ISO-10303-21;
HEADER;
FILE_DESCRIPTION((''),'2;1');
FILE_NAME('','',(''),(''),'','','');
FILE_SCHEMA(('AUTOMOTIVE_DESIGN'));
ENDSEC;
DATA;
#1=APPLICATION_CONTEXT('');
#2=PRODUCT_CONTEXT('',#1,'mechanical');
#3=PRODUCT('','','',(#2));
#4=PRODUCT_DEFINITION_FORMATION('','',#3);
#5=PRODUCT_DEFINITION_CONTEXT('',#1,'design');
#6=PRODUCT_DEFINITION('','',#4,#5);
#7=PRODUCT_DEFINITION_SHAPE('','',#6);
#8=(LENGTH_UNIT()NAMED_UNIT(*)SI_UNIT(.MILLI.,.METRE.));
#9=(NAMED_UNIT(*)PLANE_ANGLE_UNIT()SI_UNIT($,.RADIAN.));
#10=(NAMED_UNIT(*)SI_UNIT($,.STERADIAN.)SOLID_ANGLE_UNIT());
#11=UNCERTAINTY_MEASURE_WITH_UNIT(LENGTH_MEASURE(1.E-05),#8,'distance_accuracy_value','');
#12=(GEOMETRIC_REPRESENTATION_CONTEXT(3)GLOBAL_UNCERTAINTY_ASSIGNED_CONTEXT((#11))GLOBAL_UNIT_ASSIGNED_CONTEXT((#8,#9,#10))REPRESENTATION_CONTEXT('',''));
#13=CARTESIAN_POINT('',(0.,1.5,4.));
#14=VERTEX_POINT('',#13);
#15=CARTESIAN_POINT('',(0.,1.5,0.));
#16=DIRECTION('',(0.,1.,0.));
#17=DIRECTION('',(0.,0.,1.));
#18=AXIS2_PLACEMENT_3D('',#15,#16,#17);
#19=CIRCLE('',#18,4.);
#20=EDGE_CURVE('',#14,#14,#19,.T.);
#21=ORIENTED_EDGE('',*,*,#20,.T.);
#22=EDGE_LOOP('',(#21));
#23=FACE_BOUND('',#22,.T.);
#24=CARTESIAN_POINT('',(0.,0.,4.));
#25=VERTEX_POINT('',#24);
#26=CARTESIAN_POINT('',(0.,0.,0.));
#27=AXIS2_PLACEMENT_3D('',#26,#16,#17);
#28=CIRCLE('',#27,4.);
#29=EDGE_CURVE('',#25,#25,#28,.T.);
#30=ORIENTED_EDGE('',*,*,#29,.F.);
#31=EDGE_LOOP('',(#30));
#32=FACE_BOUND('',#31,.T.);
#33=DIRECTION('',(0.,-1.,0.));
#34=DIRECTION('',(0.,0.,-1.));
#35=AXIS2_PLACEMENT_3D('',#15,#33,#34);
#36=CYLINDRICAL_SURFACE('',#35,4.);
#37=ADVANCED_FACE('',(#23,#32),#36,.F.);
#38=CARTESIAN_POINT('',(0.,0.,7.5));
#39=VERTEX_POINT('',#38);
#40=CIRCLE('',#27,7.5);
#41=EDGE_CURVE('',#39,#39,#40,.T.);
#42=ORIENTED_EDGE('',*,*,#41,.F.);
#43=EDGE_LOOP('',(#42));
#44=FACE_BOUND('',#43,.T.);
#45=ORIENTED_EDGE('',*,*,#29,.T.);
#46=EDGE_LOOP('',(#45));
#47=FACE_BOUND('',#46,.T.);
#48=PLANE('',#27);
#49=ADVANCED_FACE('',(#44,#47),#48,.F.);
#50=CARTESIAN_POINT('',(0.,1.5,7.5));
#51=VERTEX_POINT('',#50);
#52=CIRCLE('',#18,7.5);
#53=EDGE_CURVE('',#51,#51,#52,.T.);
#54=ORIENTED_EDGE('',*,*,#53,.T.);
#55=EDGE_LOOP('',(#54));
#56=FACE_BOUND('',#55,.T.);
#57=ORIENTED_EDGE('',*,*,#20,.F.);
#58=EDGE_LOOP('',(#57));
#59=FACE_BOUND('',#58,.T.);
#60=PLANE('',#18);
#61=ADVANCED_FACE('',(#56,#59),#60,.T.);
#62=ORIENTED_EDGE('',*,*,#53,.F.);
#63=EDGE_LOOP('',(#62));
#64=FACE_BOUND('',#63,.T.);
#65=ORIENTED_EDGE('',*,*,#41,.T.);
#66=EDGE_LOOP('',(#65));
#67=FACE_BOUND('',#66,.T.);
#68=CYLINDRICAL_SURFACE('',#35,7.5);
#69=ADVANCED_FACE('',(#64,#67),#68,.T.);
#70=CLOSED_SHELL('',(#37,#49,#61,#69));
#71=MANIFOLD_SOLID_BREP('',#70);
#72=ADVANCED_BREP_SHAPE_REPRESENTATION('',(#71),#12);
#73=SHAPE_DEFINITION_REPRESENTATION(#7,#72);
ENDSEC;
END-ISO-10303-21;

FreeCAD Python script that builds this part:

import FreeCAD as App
import Part
import Sketcher

V = App.Vector

doc = App.newDocument("Part")
params = doc.addObject("Spreadsheet::Sheet", "Params")
for row, (alias, value) in enumerate([
    ("sketch1_diameter", "15 mm"),
    ("sketch1_diameter2", "8 mm"),
    ("pad1_length", "1.5 mm"),
], start=1):
    params.set(f"A{row}", alias)
    params.set(f"B{row}", "=" + value)
    params.setAlias(f"B{row}", alias)

body = doc.addObject("PartDesign::Body", "Body")

# Sketch on XZ plane
sketch1 = doc.addObject("Sketcher::SketchObject", "Sketch")
body.addObject(sketch1)
sketch1.AttachmentSupport = (doc.XZ_Plane, [""])
sketch1.MapMode = "FlatFace"
sketch1.addGeometry(Part.Circle(V(0, 0, 0), V(0, 0, 1), 7.5), False)
sketch1.addGeometry(Part.Circle(V(0, 0, 0), V(0, 0, 1), 4), False)
sketch1.addConstraint(Sketcher.Constraint("Coincident", 0, 3, -1, 1))
sketch1.addConstraint(Sketcher.Constraint("Coincident", 1, 3, -1, 1))
sketch1.addConstraint(Sketcher.Constraint("Diameter", 0, 15.0))
sketch1.addConstraint(Sketcher.Constraint("Diameter", 1, 8.0))
sketch1.setExpression("Constraints[2]", "Params.sketch1_diameter")
sketch1.setExpression("Constraints[3]", "Params.sketch1_diameter2")
pad1 = doc.addObject("PartDesign::Pad", "Pad")
body.addObject(pad1)
pad1.Profile = sketch1
pad1.setExpression("Length", "Params.pad1_length")
pad1.Reversed = True

doc.recompute()
